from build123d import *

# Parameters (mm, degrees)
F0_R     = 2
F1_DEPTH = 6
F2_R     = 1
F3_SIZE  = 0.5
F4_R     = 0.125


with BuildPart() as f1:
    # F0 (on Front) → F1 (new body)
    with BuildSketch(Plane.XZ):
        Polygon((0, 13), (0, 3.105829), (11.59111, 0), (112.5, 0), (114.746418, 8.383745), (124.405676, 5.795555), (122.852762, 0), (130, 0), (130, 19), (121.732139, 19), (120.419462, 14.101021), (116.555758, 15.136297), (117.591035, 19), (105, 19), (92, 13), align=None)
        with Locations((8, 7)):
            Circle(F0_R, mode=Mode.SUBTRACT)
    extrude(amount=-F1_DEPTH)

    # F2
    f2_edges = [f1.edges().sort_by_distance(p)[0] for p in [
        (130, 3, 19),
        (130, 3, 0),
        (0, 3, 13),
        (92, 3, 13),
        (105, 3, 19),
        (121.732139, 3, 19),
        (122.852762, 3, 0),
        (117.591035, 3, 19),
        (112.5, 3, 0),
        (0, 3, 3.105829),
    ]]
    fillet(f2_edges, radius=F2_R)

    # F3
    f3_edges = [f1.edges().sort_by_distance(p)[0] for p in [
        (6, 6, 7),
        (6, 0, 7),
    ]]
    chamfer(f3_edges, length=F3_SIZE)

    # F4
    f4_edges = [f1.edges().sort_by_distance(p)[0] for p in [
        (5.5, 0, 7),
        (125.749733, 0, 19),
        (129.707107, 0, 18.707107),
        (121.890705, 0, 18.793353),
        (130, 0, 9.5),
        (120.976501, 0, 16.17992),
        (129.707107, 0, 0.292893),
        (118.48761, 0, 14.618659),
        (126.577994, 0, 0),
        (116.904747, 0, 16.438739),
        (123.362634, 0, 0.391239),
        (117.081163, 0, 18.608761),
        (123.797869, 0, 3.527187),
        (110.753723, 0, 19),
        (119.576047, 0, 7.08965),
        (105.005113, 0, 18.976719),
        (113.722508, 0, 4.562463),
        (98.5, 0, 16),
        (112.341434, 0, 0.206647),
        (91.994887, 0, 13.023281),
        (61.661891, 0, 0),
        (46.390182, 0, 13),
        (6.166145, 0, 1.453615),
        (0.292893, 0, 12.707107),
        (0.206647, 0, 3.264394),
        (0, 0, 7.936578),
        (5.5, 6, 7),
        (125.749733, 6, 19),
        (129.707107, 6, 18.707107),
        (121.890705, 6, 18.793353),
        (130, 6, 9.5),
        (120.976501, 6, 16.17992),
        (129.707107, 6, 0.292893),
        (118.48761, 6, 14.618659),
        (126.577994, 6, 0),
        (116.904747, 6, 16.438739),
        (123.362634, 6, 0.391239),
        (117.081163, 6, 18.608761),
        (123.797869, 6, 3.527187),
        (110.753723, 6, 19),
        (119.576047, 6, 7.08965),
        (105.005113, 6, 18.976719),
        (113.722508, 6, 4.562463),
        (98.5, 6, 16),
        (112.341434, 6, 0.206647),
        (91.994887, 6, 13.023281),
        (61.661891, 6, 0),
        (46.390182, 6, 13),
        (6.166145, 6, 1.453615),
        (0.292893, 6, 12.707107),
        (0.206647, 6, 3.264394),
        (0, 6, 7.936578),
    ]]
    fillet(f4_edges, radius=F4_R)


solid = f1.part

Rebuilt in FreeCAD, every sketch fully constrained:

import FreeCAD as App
import Part
import Sketcher
from FreeCAD import Vector
Q = App.Units.Quantity


def edges_at(feature, points):
    """Names of the edges that pass closest to the given points."""
    edges = feature.Shape.Edges
    near = lambda p: min(range(len(edges)), key=lambda i: edges[i].distToShape(Part.Vertex(*p))[0])
    return sorted({f"Edge{near(p) + 1}" for p in points})


def add_polygon(sketch, points):
    """Adds a closed chain of lines whose ends are joined by coincident constraints."""
    first, n = sketch.GeometryCount, len(points)
    for a, b in zip(points, points[1:] + points[:1]):
        sketch.addGeometry(Part.LineSegment(App.Vector(*a, 0), App.Vector(*b, 0)), False)
    for i in range(n):
        sketch.addConstraint(Sketcher.Constraint("Coincident", first + i, 2, first + (i + 1) % n, 1))

doc = App.newDocument("Part")
body = doc.addObject("PartDesign::Body", "Body")

# Sketch on XZ plane
sketch1 = body.newObject("Sketcher::SketchObject", "Sketch")
sketch1.AttachmentSupport = (doc.getObject("XZ_Plane"), [""])
sketch1.MapMode = "FlatFace"
add_polygon(sketch1, [(0, 13), (0, 3.1), (11.6, 0), (112.5, 0), (114.7, 8.4), (124.4, 5.8), (122.9, 0), (130, 0), (130, 19), (121.7, 19), (120.4, 14.1), (116.6, 15.1), (117.6, 19), (105, 19), (92, 13)])  # lines 0-14
sketch1.addGeometry(Part.Circle(Vector(8, 7, 0), Vector(0, 0, 1), 2), False)  # 15
sketch1.addConstraint([
    Sketcher.Constraint("Vertical", 0),
    Sketcher.Constraint("Horizontal", 2),
    Sketcher.Constraint("Horizontal", 6),
    Sketcher.Constraint("Vertical", 7),
    Sketcher.Constraint("Horizontal", 8),
    Sketcher.Constraint("Horizontal", 12),
    Sketcher.Constraint("Horizontal", 14),
    Sketcher.Constraint("PointOnObject", 0, 2, -2),
    Sketcher.Constraint("PointOnObject", 1, 2, -1),
    Sketcher.Constraint("PointOnObject", 5, 2, -1),
    Sketcher.Constraint("Perpendicular", 1, 3),
    Sketcher.Constraint("Perpendicular", 3, 4),
    Sketcher.Constraint("Perpendicular", 4, 5),
    Sketcher.Constraint("Parallel", 5, 9),
    Sketcher.Constraint("Perpendicular", 9, 10),
    Sketcher.Constraint("Perpendicular", 10, 11),
    Sketcher.Constraint("Horizontal", 8, 2, 11, 2),
    Sketcher.Constraint("Equal", 10, 11),
    Sketcher.Constraint("Diameter", 15, Q("4 mm")),
    Sketcher.Constraint("DistanceX", 14, 2, 14, 1, Q("92 mm")),
    Sketcher.Constraint("DistanceY", 7, 1, 7, 2, Q("19 mm")),
    Sketcher.Constraint("Angle", 1, Q("-15.000002 deg")),
    Sketcher.Constraint("Distance", 1, Q("12 mm")),
    Sketcher.Constraint("Distance", 4, Q("10 mm")),
    Sketcher.Constraint("Distance", 5, Q("6 mm")),
    Sketcher.Constraint("Distance", 10, Q("4.000001 mm")),
    Sketcher.Constraint("DistanceX", -1, 1, 15, 3, Q("8 mm")),
    Sketcher.Constraint("DistanceY", -1, 1, 15, 3, Q("7 mm")),
    Sketcher.Constraint("DistanceX", -1, 1, 6, 2, Q("130 mm")),
    Sketcher.Constraint("DistanceX", -1, 1, 12, 2, Q("105 mm")),
    Sketcher.Constraint("DistanceY", -1, 1, 13, 2, Q("13 mm")),
    Sketcher.Constraint("DistanceX", -1, 1, 2, 2, Q("112.5 mm")),
    Sketcher.Constraint("DistanceX", 8, 2, 8, 1, Q("8.267861 mm")),
])
pad1 = body.newObject("PartDesign::Pad", "Pad")
pad1.Profile = sketch1
pad1.Length = 6
pad1.Reversed = True
doc.recompute()

fillet = body.newObject("PartDesign::Fillet", "Fillet")
fillet.Base = (pad1, edges_at(pad1, [
    (130, 3, 19),
    (130, 3, 0),
    (0, 3, 13),
    (92, 3, 13),
    (105, 3, 19),
    (121.732, 3, 19),
    (122.853, 3, 0),
    (117.591, 3, 19),
    (112.5, 3, 0),
    (0, 3, 3.106),
]))
fillet.Radius = 1
doc.recompute()

chamfer = body.newObject("PartDesign::Chamfer", "Chamfer")
chamfer.Base = (fillet, edges_at(fillet, [(6, 6, 7), (6, 0, 7)]))
chamfer.Size = 0.5
doc.recompute()

fillet2 = body.newObject("PartDesign::Fillet", "Fillet001")
fillet2.Base = (chamfer, edges_at(chamfer, [
    (5.5, 0, 7),
    (125.75, 0, 19),
    (129.707, 0, 18.707),
    (121.891, 0, 18.793),
    (130, 0, 9.5),
    (120.977, 0, 16.18),
    (129.707, 0, 0.293),
    (118.488, 0, 14.619),
    (126.578, 0, 0),
    (116.905, 0, 16.439),
    (123.363, 0, 0.391),
    (117.081, 0, 18.609),
    (123.798, 0, 3.527),
    (110.754, 0, 19),
    (119.576, 0, 7.09),
    (105.005, 0, 18.977),
    (113.723, 0, 4.562),
    (98.5, 0, 16),
    (112.341, 0, 0.207),
    (91.995, 0, 13.023),
    (61.662, 0, 0),
    (46.39, 0, 13),
    (6.166, 0, 1.454),
    (0.293, 0, 12.707),
    (0.207, 0, 3.264),
    (0, 0, 7.937),
    (5.5, 6, 7),
    (125.75, 6, 19),
    (129.707, 6, 18.707),
    (121.891, 6, 18.793),
    (130, 6, 9.5),
    (120.977, 6, 16.18),
    (129.707, 6, 0.293),
    (118.488, 6, 14.619),
    (126.578, 6, 0),
    (116.905, 6, 16.439),
    (123.363, 6, 0.391),
    (117.081, 6, 18.609),
    (123.798, 6, 3.527),
    (110.754, 6, 19),
    (119.576, 6, 7.09),
    (105.005, 6, 18.977),
    (113.723, 6, 4.562),
    (98.5, 6, 16),
    (112.341, 6, 0.207),
    (91.995, 6, 13.023),
    (61.662, 6, 0),
    (46.39, 6, 13),
    (6.166, 6, 1.454),
    (0.293, 6, 12.707),
    (0.207, 6, 3.264),
    (0, 6, 7.937),
]))
fillet2.Radius = 0.125

doc.recompute()
